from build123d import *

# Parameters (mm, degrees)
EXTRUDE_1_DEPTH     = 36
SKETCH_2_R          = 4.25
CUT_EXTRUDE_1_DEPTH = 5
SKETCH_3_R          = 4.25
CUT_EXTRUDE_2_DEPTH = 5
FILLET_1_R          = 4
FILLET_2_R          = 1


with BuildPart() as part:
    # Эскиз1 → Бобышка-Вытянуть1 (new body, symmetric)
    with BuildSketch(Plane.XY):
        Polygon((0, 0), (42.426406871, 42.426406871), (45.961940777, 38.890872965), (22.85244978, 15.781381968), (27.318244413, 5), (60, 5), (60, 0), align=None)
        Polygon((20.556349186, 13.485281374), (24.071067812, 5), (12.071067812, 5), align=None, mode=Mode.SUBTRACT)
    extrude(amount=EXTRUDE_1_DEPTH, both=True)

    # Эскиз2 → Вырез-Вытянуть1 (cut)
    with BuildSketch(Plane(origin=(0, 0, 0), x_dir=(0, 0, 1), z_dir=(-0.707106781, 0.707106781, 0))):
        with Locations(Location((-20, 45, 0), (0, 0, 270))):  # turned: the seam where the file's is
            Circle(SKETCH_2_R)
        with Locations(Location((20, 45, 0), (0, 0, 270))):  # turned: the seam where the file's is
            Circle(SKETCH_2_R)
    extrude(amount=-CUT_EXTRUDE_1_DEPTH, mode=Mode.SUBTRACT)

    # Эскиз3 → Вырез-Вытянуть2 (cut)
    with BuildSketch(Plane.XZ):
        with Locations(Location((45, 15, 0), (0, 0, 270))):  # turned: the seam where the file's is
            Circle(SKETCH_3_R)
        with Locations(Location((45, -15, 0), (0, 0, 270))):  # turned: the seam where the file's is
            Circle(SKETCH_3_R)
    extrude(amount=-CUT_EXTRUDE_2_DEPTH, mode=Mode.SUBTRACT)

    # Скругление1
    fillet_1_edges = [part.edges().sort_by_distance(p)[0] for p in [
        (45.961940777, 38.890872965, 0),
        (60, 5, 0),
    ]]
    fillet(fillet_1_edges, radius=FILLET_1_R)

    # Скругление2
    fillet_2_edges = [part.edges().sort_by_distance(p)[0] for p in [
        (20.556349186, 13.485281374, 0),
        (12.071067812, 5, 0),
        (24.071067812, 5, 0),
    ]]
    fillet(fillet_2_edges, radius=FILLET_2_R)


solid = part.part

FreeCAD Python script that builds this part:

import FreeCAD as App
import Part
import Sketcher

V = App.Vector
Q = App.Units.Quantity


def edges_at(feature, points):
    """Names of the edges that pass closest to the given points."""
    edges = feature.Shape.Edges
    near = lambda p: min(range(len(edges)), key=lambda i: edges[i].distToShape(Part.Vertex(*p))[0])
    return sorted({f"Edge{near(p) + 1}" for p in points})

doc = App.newDocument("Part")
body = doc.addObject("PartDesign::Body", "Body")

sketch1 = body.newObject("Sketcher::SketchObject", "Sketch")
sketch1.AttachmentSupport = (doc.getObject("XY_Plane"), [""])
sketch1.MapMode = "FlatFace"
sketch1.addGeometry(Part.LineSegment(V(42, 42, 0), V(0, 0, 0)), False)
sketch1.addGeometry(Part.LineSegment(V(0, 0, 0), V(60, 0, 0)), False)
sketch1.addGeometry(Part.LineSegment(V(60, 0, 0), V(60, 5, 0)), False)
sketch1.addGeometry(Part.LineSegment(V(60, 5, 0), V(27, 5, 0)), False)
sketch1.addGeometry(Part.LineSegment(V(27, 5, 0), V(23, 16, 0)), False)
sketch1.addGeometry(Part.LineSegment(V(23, 16, 0), V(46, 39, 0)), False)
sketch1.addGeometry(Part.LineSegment(V(46, 39, 0), V(42, 42, 0)), False)
sketch1.addGeometry(Part.LineSegment(V(21, 13, 0), V(24, 5, 0)), False)
sketch1.addGeometry(Part.LineSegment(V(24, 5, 0), V(12, 5, 0)), False)
sketch1.addGeometry(Part.LineSegment(V(12, 5, 0), V(21, 13, 0)), False)
sketch1.addConstraint(Sketcher.Constraint("Coincident", 0, 2, 1, 1))
sketch1.addConstraint(Sketcher.Constraint("Coincident", 1, 2, 2, 1))
sketch1.addConstraint(Sketcher.Constraint("Coincident", 2, 2, 3, 1))
sketch1.addConstraint(Sketcher.Constraint("Coincident", 3, 2, 4, 1))
sketch1.addConstraint(Sketcher.Constraint("Coincident", 4, 2, 5, 1))
sketch1.addConstraint(Sketcher.Constraint("Coincident", 5, 2, 6, 1))
sketch1.addConstraint(Sketcher.Constraint("Coincident", 6, 2, 0, 1))
sketch1.addConstraint(Sketcher.Constraint("Coincident", 7, 2, 8, 1))
sketch1.addConstraint(Sketcher.Constraint("Coincident", 8, 2, 9, 1))
sketch1.addConstraint(Sketcher.Constraint("Coincident", 9, 2, 7, 1))
sketch1.addConstraint(Sketcher.Constraint("Horizontal", 1))
sketch1.addConstraint(Sketcher.Constraint("Vertical", 2))
sketch1.addConstraint(Sketcher.Constraint("Horizontal", 3))
sketch1.addConstraint(Sketcher.Constraint("Horizontal", 8))
sketch1.addConstraint(Sketcher.Constraint("Coincident", 0, 2, -1, 1))
sketch1.addConstraint(Sketcher.Constraint("Parallel", 0, 5))
sketch1.addConstraint(Sketcher.Constraint("Perpendicular", 5, 6))
sketch1.addConstraint(Sketcher.Constraint("Parallel", 4, 7))
sketch1.addConstraint(Sketcher.Constraint("Perpendicular", 6, 9))
sketch1.addConstraint(Sketcher.Constraint("Horizontal", 3, 2, 7, 2))
sketch1.addConstraint(Sketcher.Constraint("DistanceX", 1, 1, 1, 2, 60.0))
sketch1.addConstraint(Sketcher.Constraint("DistanceX", 8, 2, 8, 1, 12.0))
sketch1.addConstraint(Sketcher.Constraint("DistanceY", 2, 1, 2, 2, 5.0))
sketch1.addConstraint(Sketcher.Constraint("Angle", 0, Q("-135 deg")))
sketch1.addConstraint(Sketcher.Constraint("Distance", 0, 60.0))
sketch1.addConstraint(Sketcher.Constraint("Distance", 6, 5.0))
sketch1.addConstraint(Sketcher.Constraint("Distance", 9, 12.0))
sketch1.addConstraint(Sketcher.Constraint("DistanceX", 9, 2, 4, 2, 2.296101))
sketch1.addConstraint(Sketcher.Constraint("DistanceY", 9, 2, 4, 2, 2.296101))
pad1 = body.newObject("PartDesign::Pad", "Pad")
pad1.Profile = sketch1
pad1.Length = 72
pad1.Midplane = True

sketch2 = body.newObject("Sketcher::SketchObject", "Sketch001")
sketch2.Placement = App.Placement(V(0, 0, 0), App.Rotation(V(0, 0, 1), V(0.707106781, 0.707106781, 0), V(-0.707106781, 0.707106781, 0), "ZXY"))
sketch2.addGeometry(Part.Circle(V(-20, 45, 0), V(0, 0, 1), 4.2), False)
sketch2.addGeometry(Part.Circle(V(20, 45, 0), V(0, 0, 1), 4.2), False)
sketch2.addConstraint(Sketcher.Constraint("Equal", 0, 1))
sketch2.addConstraint(Sketcher.Constraint("Symmetric", 0, 3, 1, 3, -2))
sketch2.addConstraint(Sketcher.Constraint("Diameter", 0, 8.5))
sketch2.addConstraint(Sketcher.Constraint("DistanceX", 0, 3, -1, 1, 20.0))
sketch2.addConstraint(Sketcher.Constraint("DistanceY", -1, 1, 0, 3, 45.0))
pocket1 = body.newObject("PartDesign::Pocket", "Pocket")
pocket1.Profile = sketch2
pocket1.Length = 5

sketch3 = body.newObject("Sketcher::SketchObject", "Sketch002")
sketch3.AttachmentSupport = (doc.getObject("XZ_Plane"), [""])
sketch3.MapMode = "FlatFace"
sketch3.addGeometry(Part.Circle(V(45, 15, 0), V(0, 0, 1), 4.2), False)
sketch3.addGeometry(Part.Circle(V(45, -15, 0), V(0, 0, 1), 4.2), False)
sketch3.addConstraint(Sketcher.Constraint("Equal", 0, 1))
sketch3.addConstraint(Sketcher.Constraint("Symmetric", 0, 3, 1, 3, -1))
sketch3.addConstraint(Sketcher.Constraint("Diameter", 0, 8.5))
sketch3.addConstraint(Sketcher.Constraint("DistanceX", -1, 1, 0, 3, 45.0))
sketch3.addConstraint(Sketcher.Constraint("DistanceY", -1, 1, 0, 3, 15.0))
pocket2 = body.newObject("PartDesign::Pocket", "Pocket001")
pocket2.Profile = sketch3
pocket2.Length = 5
doc.recompute()

fillet = body.newObject("PartDesign::Fillet", "Fillet")
fillet.Base = (pocket2, edges_at(pocket2, [(45.962, 38.891, 0), (60, 5, 0)]))
fillet.Radius = 4
doc.recompute()

fillet2 = body.newObject("PartDesign::Fillet", "Fillet001")
fillet2.Base = (fillet, edges_at(fillet, [(20.556, 13.485, 0), (12.071, 5, 0), (24.071, 5, 0)]))
fillet2.Radius = 1

doc.recompute()
